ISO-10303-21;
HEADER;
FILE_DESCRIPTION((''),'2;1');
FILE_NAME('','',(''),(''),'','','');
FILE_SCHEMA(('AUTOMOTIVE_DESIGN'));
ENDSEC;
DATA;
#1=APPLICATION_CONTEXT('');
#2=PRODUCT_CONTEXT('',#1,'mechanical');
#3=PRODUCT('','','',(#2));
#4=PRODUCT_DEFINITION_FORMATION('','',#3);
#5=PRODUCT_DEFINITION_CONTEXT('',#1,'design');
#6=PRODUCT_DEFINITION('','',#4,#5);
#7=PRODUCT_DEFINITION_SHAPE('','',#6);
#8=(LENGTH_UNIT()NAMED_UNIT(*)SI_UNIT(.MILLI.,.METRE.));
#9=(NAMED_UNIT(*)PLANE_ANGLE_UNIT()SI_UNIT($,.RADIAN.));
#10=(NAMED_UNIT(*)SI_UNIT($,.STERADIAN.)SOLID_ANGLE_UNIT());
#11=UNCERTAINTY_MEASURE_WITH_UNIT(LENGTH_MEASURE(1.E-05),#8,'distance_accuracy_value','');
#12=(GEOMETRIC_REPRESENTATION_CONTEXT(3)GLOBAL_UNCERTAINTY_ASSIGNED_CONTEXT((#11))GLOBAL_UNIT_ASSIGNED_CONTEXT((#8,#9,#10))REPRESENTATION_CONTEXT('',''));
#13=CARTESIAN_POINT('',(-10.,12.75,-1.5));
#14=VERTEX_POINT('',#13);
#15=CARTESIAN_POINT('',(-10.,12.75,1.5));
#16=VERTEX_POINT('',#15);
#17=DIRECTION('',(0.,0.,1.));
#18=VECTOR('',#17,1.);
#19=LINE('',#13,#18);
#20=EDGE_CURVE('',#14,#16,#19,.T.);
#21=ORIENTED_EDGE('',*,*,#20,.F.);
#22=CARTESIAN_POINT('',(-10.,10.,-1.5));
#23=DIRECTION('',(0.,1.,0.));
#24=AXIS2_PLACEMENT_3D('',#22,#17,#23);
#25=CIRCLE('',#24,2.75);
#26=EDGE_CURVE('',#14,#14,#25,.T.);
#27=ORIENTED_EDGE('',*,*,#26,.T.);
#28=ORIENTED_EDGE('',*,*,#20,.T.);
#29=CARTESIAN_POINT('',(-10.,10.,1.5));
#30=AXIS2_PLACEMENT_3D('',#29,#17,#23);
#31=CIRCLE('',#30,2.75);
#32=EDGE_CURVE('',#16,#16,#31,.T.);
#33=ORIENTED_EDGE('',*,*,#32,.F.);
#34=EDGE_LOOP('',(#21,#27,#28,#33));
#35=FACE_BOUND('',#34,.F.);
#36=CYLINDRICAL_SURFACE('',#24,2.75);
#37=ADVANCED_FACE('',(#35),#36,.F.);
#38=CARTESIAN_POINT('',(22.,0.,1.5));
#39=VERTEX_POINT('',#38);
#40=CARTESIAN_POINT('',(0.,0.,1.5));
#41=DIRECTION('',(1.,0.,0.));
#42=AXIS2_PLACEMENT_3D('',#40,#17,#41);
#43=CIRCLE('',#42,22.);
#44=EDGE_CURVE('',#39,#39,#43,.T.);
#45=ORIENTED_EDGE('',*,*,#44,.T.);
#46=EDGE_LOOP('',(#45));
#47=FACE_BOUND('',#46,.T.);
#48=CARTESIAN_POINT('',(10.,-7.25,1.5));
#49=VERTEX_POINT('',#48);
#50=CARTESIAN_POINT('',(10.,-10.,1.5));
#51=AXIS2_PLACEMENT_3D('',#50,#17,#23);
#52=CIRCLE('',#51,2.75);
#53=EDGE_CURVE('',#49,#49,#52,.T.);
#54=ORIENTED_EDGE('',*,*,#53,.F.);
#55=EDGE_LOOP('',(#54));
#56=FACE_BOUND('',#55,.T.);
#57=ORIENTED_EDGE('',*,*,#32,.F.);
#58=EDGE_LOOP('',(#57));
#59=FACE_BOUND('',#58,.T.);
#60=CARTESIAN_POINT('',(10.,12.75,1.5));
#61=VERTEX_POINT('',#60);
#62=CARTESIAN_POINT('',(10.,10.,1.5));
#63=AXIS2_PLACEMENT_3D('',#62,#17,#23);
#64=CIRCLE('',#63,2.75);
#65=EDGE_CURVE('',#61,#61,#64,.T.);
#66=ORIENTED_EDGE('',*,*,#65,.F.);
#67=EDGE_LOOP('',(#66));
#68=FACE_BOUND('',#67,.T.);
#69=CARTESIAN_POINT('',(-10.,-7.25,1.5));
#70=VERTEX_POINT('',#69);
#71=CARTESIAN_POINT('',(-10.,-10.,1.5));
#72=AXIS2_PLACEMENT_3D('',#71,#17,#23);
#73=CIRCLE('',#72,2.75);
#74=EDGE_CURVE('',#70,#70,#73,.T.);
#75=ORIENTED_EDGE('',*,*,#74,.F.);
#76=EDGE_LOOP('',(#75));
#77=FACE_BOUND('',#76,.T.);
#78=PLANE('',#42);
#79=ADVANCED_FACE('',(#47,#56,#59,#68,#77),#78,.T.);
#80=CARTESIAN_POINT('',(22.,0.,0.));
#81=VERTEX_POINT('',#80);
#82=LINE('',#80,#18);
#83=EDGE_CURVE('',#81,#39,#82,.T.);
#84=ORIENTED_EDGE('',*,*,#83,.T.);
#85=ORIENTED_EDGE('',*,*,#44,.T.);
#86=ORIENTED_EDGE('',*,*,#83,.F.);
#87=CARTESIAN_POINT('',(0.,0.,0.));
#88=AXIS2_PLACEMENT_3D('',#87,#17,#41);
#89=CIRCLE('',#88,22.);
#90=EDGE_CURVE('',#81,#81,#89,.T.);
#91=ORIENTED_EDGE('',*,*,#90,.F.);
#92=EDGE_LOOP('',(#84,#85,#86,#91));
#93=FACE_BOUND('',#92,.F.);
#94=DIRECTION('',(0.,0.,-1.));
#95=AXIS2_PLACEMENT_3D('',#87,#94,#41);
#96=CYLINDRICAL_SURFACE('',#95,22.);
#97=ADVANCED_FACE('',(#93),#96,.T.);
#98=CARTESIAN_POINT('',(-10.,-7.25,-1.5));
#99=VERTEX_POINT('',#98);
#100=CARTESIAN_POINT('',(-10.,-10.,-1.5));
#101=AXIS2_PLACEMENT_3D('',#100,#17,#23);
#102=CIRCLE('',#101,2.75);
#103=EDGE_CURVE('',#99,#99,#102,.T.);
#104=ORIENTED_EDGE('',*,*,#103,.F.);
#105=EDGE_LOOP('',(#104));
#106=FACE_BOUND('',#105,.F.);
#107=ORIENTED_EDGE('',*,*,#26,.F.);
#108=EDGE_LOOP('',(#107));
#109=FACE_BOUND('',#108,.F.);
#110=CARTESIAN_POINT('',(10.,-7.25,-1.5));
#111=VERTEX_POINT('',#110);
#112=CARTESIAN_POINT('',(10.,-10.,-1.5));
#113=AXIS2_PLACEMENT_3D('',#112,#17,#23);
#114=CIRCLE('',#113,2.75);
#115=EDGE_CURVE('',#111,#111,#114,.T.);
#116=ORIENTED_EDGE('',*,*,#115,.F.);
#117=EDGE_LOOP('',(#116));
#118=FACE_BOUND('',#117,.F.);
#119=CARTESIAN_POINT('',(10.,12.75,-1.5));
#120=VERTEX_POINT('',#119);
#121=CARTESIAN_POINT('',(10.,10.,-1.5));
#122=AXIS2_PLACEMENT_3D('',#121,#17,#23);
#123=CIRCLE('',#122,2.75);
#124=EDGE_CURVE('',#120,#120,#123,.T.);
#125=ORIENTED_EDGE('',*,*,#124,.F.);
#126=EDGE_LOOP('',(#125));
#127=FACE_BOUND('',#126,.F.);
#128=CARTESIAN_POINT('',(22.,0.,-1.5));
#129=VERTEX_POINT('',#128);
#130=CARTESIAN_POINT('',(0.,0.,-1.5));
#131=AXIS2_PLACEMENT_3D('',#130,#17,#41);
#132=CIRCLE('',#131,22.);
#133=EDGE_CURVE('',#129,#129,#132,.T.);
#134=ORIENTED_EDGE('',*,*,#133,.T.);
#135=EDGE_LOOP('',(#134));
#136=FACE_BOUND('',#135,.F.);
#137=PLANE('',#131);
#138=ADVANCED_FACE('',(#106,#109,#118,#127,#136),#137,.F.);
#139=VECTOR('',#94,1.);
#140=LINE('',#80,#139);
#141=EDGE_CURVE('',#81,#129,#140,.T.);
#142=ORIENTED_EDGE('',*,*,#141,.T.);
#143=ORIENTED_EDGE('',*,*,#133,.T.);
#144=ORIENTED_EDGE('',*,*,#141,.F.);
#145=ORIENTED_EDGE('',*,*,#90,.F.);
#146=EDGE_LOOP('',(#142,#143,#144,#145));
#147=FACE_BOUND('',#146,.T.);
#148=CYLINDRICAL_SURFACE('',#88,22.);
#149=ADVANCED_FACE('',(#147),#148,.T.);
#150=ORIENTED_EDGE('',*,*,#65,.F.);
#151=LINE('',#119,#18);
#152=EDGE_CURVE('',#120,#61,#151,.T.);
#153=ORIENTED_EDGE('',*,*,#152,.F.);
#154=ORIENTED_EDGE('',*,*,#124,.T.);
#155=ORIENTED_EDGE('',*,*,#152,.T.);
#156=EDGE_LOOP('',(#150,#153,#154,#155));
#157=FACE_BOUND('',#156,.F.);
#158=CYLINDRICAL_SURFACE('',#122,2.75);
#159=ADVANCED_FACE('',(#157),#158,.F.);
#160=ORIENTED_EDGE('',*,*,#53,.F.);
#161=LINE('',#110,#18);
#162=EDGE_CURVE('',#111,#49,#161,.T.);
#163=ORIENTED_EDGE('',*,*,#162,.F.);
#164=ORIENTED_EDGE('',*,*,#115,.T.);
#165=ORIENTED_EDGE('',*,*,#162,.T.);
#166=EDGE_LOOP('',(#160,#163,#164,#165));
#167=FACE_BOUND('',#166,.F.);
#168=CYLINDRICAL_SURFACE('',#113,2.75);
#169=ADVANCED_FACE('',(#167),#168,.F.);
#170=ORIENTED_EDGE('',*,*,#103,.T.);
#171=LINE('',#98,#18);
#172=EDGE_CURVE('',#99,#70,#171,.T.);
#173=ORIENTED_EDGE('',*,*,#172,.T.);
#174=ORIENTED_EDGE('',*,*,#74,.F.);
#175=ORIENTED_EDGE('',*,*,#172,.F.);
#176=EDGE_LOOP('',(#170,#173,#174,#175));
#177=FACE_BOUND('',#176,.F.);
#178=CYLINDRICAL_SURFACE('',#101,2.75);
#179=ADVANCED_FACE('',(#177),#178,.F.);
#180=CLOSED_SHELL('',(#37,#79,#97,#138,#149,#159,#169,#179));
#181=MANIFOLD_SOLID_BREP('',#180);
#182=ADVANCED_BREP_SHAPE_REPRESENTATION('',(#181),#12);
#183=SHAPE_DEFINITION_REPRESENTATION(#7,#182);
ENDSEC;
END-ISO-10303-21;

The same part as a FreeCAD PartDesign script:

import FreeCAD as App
import Part
import Sketcher
Q = App.Units.Quantity

doc = App.newDocument("Part")
body = doc.addObject("PartDesign::Body", "Body")

# Sketch on XY plane
sketch1 = body.newObject("Sketcher::SketchObject", "Sketch")
sketch1.AttachmentSupport = (doc.getObject("XY_Plane"), [""])
sketch1.MapMode = "FlatFace"
sketch1.addGeometry(Part.Circle(App.Vector(0, 0, 0), App.Vector(0, 0, 1), 22), False)
sketch1.addConstraint([
    Sketcher.Constraint("Coincident", 0, 3, -1, 1),
    Sketcher.Constraint("Diameter", 0, Q("44 mm")),
])
pad1 = body.newObject("PartDesign::Pad", "Pad")
pad1.Profile = sketch1
pad1.Length = 3
pad1.Midplane = True

# Sketch on XY plane
sketch2 = body.newObject("Sketcher::SketchObject", "Sketch001")
sketch2.AttachmentSupport = (doc.getObject("XY_Plane"), [""])
sketch2.MapMode = "FlatFace"
sketch2.AttachmentOffset = App.Placement(App.Vector(0, 0, -1.5), App.Rotation())
sketch2.addGeometry([
    Part.Circle(App.Vector(-10, 10, 0), App.Vector(0, 0, 1), 2.8),
    Part.Circle(App.Vector(10, 10, 0), App.Vector(0, 0, 1), 2.8),
    Part.Circle(App.Vector(10, -10, 0), App.Vector(0, 0, 1), 2.8),
    Part.Circle(App.Vector(-10, -10, 0), App.Vector(0, 0, 1), 2.8),
], False)
sketch2.addConstraint([
    Sketcher.Constraint("Equal", 0, 1),
    Sketcher.Constraint("Equal", 1, 2),
    Sketcher.Constraint("Equal", 2, 3),
    Sketcher.Constraint("Symmetric", 0, 3, 2, 3, -1, 1),
    Sketcher.Constraint("Symmetric", 1, 3, 3, 3, -1, 1),
    Sketcher.Constraint("Symmetric", 0, 3, 1, 3, -2),
    Sketcher.Constraint("Diameter", 0, Q("5.5 mm")),
    Sketcher.Constraint("DistanceX", 0, 3, -1, 1, Q("10 mm")),
    Sketcher.Constraint("DistanceY", -1, 1, 0, 3, Q("10 mm")),
])
doc.recompute()
hole = body.newObject("PartDesign::Hole", "Hole")
hole.Profile = sketch2
hole.ThreadType = "None"
hole.Diameter = 5.5
hole.DepthType = "Dimension"
hole.Depth = 3.2
hole.DrillPoint = "Angled"
hole.DrillPointAngle = 118
hole.Reversed = True

doc.recompute()
